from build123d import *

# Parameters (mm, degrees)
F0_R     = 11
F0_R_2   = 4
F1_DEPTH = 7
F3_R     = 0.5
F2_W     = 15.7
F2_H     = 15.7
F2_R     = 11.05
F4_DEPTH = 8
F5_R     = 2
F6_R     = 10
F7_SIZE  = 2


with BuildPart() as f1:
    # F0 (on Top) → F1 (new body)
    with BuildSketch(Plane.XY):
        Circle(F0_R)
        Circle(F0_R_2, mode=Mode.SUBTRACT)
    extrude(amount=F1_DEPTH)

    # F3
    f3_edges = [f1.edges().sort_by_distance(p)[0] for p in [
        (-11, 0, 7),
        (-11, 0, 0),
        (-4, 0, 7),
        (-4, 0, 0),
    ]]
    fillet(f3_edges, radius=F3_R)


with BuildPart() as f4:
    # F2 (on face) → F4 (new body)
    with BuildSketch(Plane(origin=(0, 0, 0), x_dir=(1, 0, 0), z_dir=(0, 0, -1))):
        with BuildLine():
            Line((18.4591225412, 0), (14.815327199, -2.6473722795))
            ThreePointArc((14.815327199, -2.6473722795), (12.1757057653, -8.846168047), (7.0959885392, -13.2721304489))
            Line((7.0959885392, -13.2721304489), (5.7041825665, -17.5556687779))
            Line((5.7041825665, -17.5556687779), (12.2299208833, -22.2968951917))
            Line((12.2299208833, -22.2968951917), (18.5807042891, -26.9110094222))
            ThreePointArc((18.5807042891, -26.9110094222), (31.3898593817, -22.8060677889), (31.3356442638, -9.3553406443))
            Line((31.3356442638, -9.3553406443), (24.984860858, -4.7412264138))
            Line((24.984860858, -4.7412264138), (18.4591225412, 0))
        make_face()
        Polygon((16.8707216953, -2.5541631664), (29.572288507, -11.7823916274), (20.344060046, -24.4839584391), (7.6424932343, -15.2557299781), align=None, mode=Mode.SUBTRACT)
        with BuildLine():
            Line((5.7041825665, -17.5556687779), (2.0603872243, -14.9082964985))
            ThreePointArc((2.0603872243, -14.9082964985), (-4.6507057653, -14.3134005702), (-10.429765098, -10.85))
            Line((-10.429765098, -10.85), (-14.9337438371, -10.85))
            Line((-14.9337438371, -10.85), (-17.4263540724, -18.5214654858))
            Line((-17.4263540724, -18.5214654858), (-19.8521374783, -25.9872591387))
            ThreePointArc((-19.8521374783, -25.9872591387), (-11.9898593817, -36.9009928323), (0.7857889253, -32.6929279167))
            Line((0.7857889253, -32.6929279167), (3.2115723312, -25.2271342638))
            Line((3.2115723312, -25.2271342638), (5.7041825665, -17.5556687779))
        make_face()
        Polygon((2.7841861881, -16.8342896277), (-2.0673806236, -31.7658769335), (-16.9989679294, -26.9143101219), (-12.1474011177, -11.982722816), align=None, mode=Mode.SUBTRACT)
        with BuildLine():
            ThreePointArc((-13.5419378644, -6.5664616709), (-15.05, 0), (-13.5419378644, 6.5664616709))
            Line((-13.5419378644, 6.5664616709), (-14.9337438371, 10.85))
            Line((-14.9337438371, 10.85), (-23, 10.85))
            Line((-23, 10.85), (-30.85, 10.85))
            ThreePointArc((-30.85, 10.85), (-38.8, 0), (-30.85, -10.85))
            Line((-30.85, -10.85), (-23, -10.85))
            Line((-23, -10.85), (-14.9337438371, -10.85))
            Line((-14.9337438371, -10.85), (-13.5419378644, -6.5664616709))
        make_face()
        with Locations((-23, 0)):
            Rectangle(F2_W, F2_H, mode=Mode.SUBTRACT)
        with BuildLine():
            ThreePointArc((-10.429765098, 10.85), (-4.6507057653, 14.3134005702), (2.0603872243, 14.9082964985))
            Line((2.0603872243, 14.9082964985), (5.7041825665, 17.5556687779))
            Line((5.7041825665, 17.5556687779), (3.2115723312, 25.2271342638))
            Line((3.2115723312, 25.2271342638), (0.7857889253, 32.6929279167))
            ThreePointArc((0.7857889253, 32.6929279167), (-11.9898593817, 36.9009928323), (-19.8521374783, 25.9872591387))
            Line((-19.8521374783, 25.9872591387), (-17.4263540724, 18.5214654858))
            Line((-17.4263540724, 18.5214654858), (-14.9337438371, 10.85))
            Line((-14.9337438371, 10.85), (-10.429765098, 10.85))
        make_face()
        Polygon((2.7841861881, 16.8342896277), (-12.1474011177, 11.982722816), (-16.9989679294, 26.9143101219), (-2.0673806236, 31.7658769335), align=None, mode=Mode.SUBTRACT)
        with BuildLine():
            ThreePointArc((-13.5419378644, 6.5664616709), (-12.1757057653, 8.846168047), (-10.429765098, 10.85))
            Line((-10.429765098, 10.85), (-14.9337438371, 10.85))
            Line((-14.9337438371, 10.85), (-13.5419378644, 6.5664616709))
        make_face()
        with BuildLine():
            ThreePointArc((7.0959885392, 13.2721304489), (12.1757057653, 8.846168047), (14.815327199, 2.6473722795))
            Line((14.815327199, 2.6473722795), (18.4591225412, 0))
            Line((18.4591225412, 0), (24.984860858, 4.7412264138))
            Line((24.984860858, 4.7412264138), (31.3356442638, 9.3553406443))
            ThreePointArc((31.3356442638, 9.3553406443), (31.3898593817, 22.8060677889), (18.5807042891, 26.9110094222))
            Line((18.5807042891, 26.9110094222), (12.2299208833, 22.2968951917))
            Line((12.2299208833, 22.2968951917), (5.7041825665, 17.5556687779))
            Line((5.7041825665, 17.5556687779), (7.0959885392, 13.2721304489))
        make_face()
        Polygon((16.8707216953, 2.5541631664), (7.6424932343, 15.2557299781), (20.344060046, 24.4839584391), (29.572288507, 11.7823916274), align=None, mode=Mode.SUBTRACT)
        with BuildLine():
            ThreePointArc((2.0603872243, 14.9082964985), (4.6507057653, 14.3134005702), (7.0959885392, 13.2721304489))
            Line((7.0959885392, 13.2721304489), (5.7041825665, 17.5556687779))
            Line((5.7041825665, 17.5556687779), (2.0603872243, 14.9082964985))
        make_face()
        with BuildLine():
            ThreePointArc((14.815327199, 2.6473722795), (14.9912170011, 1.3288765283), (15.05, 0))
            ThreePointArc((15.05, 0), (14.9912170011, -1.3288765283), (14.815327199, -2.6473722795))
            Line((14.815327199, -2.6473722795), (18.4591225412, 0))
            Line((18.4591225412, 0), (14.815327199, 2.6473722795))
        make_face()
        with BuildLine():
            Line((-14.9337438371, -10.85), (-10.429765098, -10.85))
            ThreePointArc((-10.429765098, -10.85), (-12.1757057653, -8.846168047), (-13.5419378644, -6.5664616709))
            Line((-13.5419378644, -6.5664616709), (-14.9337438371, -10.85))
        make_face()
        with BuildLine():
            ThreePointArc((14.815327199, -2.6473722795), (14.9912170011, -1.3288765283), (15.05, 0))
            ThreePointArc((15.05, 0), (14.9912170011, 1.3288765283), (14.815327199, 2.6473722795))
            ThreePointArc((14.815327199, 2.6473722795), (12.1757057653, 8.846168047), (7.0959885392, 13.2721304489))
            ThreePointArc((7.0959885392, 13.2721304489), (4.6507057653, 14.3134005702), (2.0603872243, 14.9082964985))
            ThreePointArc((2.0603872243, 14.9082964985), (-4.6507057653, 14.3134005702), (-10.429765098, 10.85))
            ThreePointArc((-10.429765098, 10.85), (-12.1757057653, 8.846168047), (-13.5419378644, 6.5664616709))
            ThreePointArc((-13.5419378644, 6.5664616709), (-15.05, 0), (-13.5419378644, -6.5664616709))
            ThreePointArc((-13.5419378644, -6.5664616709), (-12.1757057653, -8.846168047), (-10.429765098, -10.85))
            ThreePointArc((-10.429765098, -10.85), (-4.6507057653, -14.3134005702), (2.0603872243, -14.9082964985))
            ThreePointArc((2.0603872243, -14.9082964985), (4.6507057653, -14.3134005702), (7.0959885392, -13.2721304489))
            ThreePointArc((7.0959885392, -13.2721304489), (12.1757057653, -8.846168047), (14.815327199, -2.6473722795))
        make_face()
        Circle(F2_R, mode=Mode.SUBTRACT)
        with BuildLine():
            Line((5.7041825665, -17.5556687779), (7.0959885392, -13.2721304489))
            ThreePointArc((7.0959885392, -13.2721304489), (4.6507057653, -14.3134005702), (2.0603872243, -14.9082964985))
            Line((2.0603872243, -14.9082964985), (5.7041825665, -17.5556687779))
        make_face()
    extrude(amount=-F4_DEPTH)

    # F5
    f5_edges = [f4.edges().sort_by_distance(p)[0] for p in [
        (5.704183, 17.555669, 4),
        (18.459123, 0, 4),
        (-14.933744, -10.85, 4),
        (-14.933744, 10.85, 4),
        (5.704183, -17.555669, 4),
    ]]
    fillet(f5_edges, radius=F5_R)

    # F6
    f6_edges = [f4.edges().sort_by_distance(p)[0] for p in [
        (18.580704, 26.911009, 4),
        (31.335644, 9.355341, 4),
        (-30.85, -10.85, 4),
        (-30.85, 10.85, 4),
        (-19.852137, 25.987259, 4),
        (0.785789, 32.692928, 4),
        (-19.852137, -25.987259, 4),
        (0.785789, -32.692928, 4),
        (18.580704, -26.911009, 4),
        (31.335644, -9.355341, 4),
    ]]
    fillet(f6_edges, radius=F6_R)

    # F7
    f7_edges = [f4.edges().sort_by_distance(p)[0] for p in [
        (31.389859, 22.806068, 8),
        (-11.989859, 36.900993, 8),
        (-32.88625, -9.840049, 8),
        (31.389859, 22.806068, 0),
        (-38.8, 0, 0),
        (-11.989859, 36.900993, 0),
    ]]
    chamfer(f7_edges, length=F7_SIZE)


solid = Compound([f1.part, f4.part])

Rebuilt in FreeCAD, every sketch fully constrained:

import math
import FreeCAD as App
import Part
import Sketcher
from FreeCAD import Vector
Q = App.Units.Quantity


def edges_at(feature, points):
    """Names of the edges that pass closest to the given points."""
    edges = feature.Shape.Edges
    near = lambda p: min(range(len(edges)), key=lambda i: edges[i].distToShape(Part.Vertex(*p))[0])
    return sorted({f"Edge{near(p) + 1}" for p in points})


def add_polygon(sketch, points):
    """Adds a closed chain of lines whose ends are joined by coincident constraints."""
    first, n = sketch.GeometryCount, len(points)
    for a, b in zip(points, points[1:] + points[:1]):
        sketch.addGeometry(Part.LineSegment(App.Vector(*a, 0), App.Vector(*b, 0)), False)
    for i in range(n):
        sketch.addConstraint(Sketcher.Constraint("Coincident", first + i, 2, first + (i + 1) % n, 1))

doc = App.newDocument("Part")
body = doc.addObject("PartDesign::Body", "Body")

# Sketch on XY plane
sketch1 = doc.addObject("Sketcher::SketchObject", "Sketch")
body.addObject(sketch1)
sketch1.AttachmentSupport = (doc.XY_Plane, [""])
sketch1.MapMode = "FlatFace"
sketch1.addGeometry([
    Part.Circle(Vector(0, 0, 0), Vector(0, 0, 1), 11),
    Part.Circle(Vector(0, 0, 0), Vector(0, 0, 1), 4),
], False)
sketch1.addConstraint([
    Sketcher.Constraint("Coincident", 0, 3, -1, 1),
    Sketcher.Constraint("Coincident", 1, 3, -1, 1),
    Sketcher.Constraint("Diameter", 0, 22.0),
    Sketcher.Constraint("Diameter", 1, 8.0),
])
pad1 = doc.addObject("PartDesign::Pad", "Pad")
body.addObject(pad1)
pad1.Profile = sketch1
pad1.Length = 7
doc.recompute()

fillet = doc.addObject("PartDesign::Fillet", "Fillet")
body.addObject(fillet)
fillet.Base = (pad1, edges_at(pad1, [
    (-11, 0, 7),
    (-11, 0, 0),
    (-4, 0, 7),
    (-4, 0, 0),
]))
fillet.Radius = 0.5
body2 = doc.addObject("PartDesign::Body", "Body001")

# Sketch on XY plane
sketch2 = doc.addObject("Sketcher::SketchObject", "Sketch001")
body2.addObject(sketch2)
sketch2.AttachmentSupport = (doc.getObject("XY_Plane001"), [""])
sketch2.MapMode = "FlatFace"
sketch2.addGeometry(Part.LineSegment(Vector(1, 33, 0), Vector(3, 25, 0)), False)  # 0
sketch2.addGeometry(Part.LineSegment(Vector(3, 25, 0), Vector(6, 18, 0)), False)  # 1
sketch2.addGeometry(Part.LineSegment(Vector(6, 18, 0), Vector(12, 22, 0)), False)  # 2
sketch2.addGeometry(Part.LineSegment(Vector(12, 22, 0), Vector(19, 27, 0)), False)  # 3
sketch2.addGeometry(Part.ArcOfCircle(Part.Circle(Vector(22, 16, 0), Vector(0, 0, 1), 11), math.radians(-36), math.radians(108)), False)  # 4
sketch2.addGeometry(Part.LineSegment(Vector(31, 9, 0), Vector(25, 5, 0)), False)  # 5
sketch2.addGeometry(Part.LineSegment(Vector(25, 5, 0), Vector(18, 0, 0)), False)  # 6
sketch2.addGeometry(Part.LineSegment(Vector(18, 0, 0), Vector(25, -5, 0)), False)  # 7
sketch2.addGeometry(Part.LineSegment(Vector(25, -5, 0), Vector(31, -9, 0)), False)  # 8
sketch2.addGeometry(Part.ArcOfCircle(Part.Circle(Vector(22, -16, 0), Vector(0, 0, 1), 11), math.radians(-108), math.radians(36)), False)  # 9
sketch2.addGeometry(Part.LineSegment(Vector(19, -27, 0), Vector(12, -22, 0)), False)  # 10
sketch2.addGeometry(Part.LineSegment(Vector(12, -22, 0), Vector(6, -18, 0)), False)  # 11
sketch2.addGeometry(Part.LineSegment(Vector(6, -18, 0), Vector(3, -25, 0)), False)  # 12
sketch2.addGeometry(Part.LineSegment(Vector(3, -25, 0), Vector(1, -33, 0)), False)  # 13
sketch2.addGeometry(Part.ArcOfCircle(Part.Circle(Vector(-8, -26, 0), Vector(0, 0, 1), 11), math.radians(180), math.radians(324)), False)  # 14
sketch2.addGeometry(Part.LineSegment(Vector(-20, -26, 0), Vector(-17, -19, 0)), False)  # 15
sketch2.addGeometry(Part.LineSegment(Vector(-17, -19, 0), Vector(-15, -11, 0)), False)  # 16
sketch2.addGeometry(Part.LineSegment(Vector(-15, -11, 0), Vector(-31, -11, 0)), False)  # 17
sketch2.addGeometry(Part.ArcOfCircle(Part.Circle(Vector(-27, 0, 0), Vector(0, 0, 1), 11), math.radians(108), math.radians(252)), False)  # 18
sketch2.addGeometry(Part.LineSegment(Vector(-31, 11, 0), Vector(-15, 11, 0)), False)  # 19
sketch2.addGeometry(Part.LineSegment(Vector(-15, 11, 0), Vector(-17, 19, 0)), False)  # 20
sketch2.addGeometry(Part.LineSegment(Vector(-17, 19, 0), Vector(-20, 26, 0)), False)  # 21
sketch2.addGeometry(Part.ArcOfCircle(Part.Circle(Vector(-8, 26, 0), Vector(0, 0, 1), 11), math.radians(36), math.radians(180)), False)  # 22
add_polygon(sketch2, [(3, 17), (-2, 32), (-17, 27), (-12, 12)])  # lines 23-26
add_polygon(sketch2, [(-15, 8), (-31, 8), (-31, -8), (-15, -8)])  # lines 27-30
sketch2.addGeometry(Part.Circle(Vector(0, 0, 0), Vector(0, 0, 1), 11), False)  # 31
add_polygon(sketch2, [(8, 15), (17, 3), (30, 12), (20, 24)])  # lines 32-35
add_polygon(sketch2, [(3, -17), (-12, -12), (-17, -27), (-2, -32)])  # lines 36-39
add_polygon(sketch2, [(30, -12), (17, -3), (8, -15), (20, -24)])  # lines 40-43
sketch2.addConstraint([
    Sketcher.Constraint("Coincident", 0, 2, 1, 1),
    Sketcher.Constraint("Coincident", 1, 2, 2, 1),
    Sketcher.Constraint("Coincident", 2, 2, 3, 1),
    Sketcher.Constraint("Coincident", 3, 2, 4, 2),
    Sketcher.Constraint("Coincident", 4, 1, 5, 1),
    Sketcher.Constraint("Coincident", 5, 2, 6, 1),
    Sketcher.Constraint("Coincident", 6, 2, 7, 1),
    Sketcher.Constraint("Coincident", 7, 2, 8, 1),
    Sketcher.Constraint("Coincident", 8, 2, 9, 2),
    Sketcher.Constraint("Coincident", 9, 1, 10, 1),
    Sketcher.Constraint("Coincident", 10, 2, 11, 1),
    Sketcher.Constraint("Coincident", 11, 2, 12, 1),
    Sketcher.Constraint("Coincident", 12, 2, 13, 1),
    Sketcher.Constraint("Coincident", 13, 2, 14, 2),
    Sketcher.Constraint("Coincident", 14, 1, 15, 1),
    Sketcher.Constraint("Coincident", 15, 2, 16, 1),
    Sketcher.Constraint("Coincident", 16, 2, 17, 1),
    Sketcher.Constraint("Coincident", 17, 2, 18, 2),
    Sketcher.Constraint("Coincident", 18, 1, 19, 1),
    Sketcher.Constraint("Coincident", 19, 2, 20, 1),
    Sketcher.Constraint("Coincident", 20, 2, 21, 1),
    Sketcher.Constraint("Coincident", 21, 2, 22, 2),
    Sketcher.Constraint("Coincident", 22, 1, 0, 1),
    Sketcher.Constraint("Horizontal", 17),
    Sketcher.Constraint("Horizontal", 19),
    Sketcher.Constraint("Horizontal", 27),
    Sketcher.Constraint("Vertical", 28),
    Sketcher.Constraint("Horizontal", 29),
    Sketcher.Constraint("Vertical", 30),
    Sketcher.Constraint("Coincident", 31, 3, -1, 1),
    Sketcher.Constraint("Equal", 4, 9),
    Sketcher.Constraint("Equal", 9, 14),
    Sketcher.Constraint("Equal", 14, 18),
    Sketcher.Constraint("Equal", 18, 22),
    Sketcher.Constraint("Symmetric", 4, 3, 9, 3, -1),
    Sketcher.Constraint("Symmetric", 14, 3, 22, 3, -1),
    Sketcher.Constraint("Symmetric", 5, 2, 7, 2, -1),
    Sketcher.Constraint("Symmetric", 2, 2, 10, 2, -1),
    Sketcher.Constraint("Symmetric", 1, 2, 11, 2, -1),
    Sketcher.Constraint("Symmetric", 0, 2, 12, 2, -1),
    Sketcher.Constraint("Symmetric", 17, 2, 18, 1, -1),
    Sketcher.Constraint("Symmetric", 15, 2, 20, 2, -1),
    Sketcher.Constraint("Symmetric", 25, 2, 36, 2, -1),
    Sketcher.Constraint("Symmetric", 24, 2, 37, 2, -1),
    Sketcher.Constraint("Symmetric", 23, 2, 38, 2, -1),
    Sketcher.Constraint("Symmetric", 26, 2, 39, 2, -1),
    Sketcher.Constraint("Symmetric", 32, 2, 40, 2, -1),
    Sketcher.Constraint("Symmetric", 35, 2, 41, 2, -1),
    Sketcher.Constraint("Symmetric", 34, 2, 42, 2, -1),
    Sketcher.Constraint("Symmetric", 33, 2, 43, 2, -1),
    Sketcher.Constraint("PointOnObject", 6, 2, -1),
    Sketcher.Constraint("Parallel", 0, 1),
    Sketcher.Constraint("Parallel", 2, 3),
    Sketcher.Constraint("Parallel", 3, 5),
    Sketcher.Constraint("Parallel", 5, 6),
    Sketcher.Constraint("Parallel", 7, 8),
    Sketcher.Constraint("Parallel", 8, 10),
    Sketcher.Constraint("Parallel", 12, 13),
    Sketcher.Constraint("Parallel", 13, 15),
    Sketcher.Constraint("Parallel", 15, 16),
    Sketcher.Constraint("Parallel", 1, 20),
    Sketcher.Constraint("Parallel", 20, 21),
    Sketcher.Constraint("Parallel", 21, 23),
    Sketcher.Constraint("Perpendicular", 23, 24),
    Sketcher.Constraint("Perpendicular", 24, 25),
    Sketcher.Constraint("Perpendicular", 25, 26),
    Sketcher.Constraint("Perpendicular", 6, 32),
    Sketcher.Constraint("Perpendicular", 32, 33),
    Sketcher.Constraint("Perpendicular", 33, 34),
    Sketcher.Constraint("Perpendicular", 34, 35),
    Sketcher.Constraint("Vertical", 18, 1, 27, 2),
    Sketcher.Constraint("Equal", 29, 28),
    Sketcher.Constraint("Equal", 1, 2),
    Sketcher.Constraint("Equal", 0, 3),
    Sketcher.Constraint("Equal", 3, 5),
    Sketcher.Constraint("Equal", 2, 6),
    Sketcher.Constraint("Equal", 13, 15),
    Sketcher.Constraint("Equal", 12, 16),
    Sketcher.Constraint("Equal", 23, 24),
    Sketcher.Constraint("Equal", 26, 32),
    Sketcher.Constraint("Equal", 32, 33),
    Sketcher.Constraint("Diameter", 31, 22.1),
    Sketcher.Constraint("Angle", 0, Q("-72 deg")),
    Sketcher.Constraint("Angle", 2, Q("36 deg")),
    Sketcher.Constraint("DistanceX", 27, 2, 27, 1, 15.7),
    Sketcher.Constraint("DistanceY", 27, 2, 18, 1, 3.0),
    Sketcher.Constraint("DistanceY", 17, 2, 28, 2, 3.0),
    Sketcher.Constraint("Distance", 23, 15.7),
    Sketcher.Constraint("Distance", 0, 7.85),
    Sketcher.Constraint("DistanceX", 17, 2, -1, 1, 30.85),
    Sketcher.Constraint("Radius", 4, 11.378931),
    Sketcher.Constraint("DistanceY", -1, 1, 4, 3, 16.1177),
    Sketcher.Constraint("DistanceX", 25, 2, -1, 1, 12.147401),
    Sketcher.Constraint("DistanceX", 23, 2, 2, 2, 14.297302),
    Sketcher.Constraint("DistanceX", 32, 2, 6, 2, 1.588401),
    Sketcher.Constraint("DistanceX", 17, 2, 17, 1, 15.916256),
    Sketcher.Constraint("DistanceX", -1, 1, 4, 3, 22.184111),
    Sketcher.Constraint("DistanceY", -1, 1, 1, 2, 17.555669),
    Sketcher.Constraint("DistanceY", -1, 1, 24, 2, 26.91431),
    Sketcher.Constraint("DistanceY", -1, 1, 33, 2, 11.782392),
])
pad2 = doc.addObject("PartDesign::Pad", "Pad001")
body2.addObject(pad2)
pad2.Profile = sketch2
pad2.Length = 8
doc.recompute()

fillet2 = doc.addObject("PartDesign::Fillet", "Fillet001")
body2.addObject(fillet2)
fillet2.Base = (pad2, edges_at(pad2, [
    (5.704, 17.556, 4),
    (18.459, 0, 4),
    (-14.934, -10.85, 4),
    (-14.934, 10.85, 4),
    (5.704, -17.556, 4),
]))
fillet2.Radius = 2
doc.recompute()

fillet3 = doc.addObject("PartDesign::Fillet", "Fillet002")
body2.addObject(fillet3)
fillet3.Base = (fillet2, edges_at(fillet2, [
    (18.581, 26.911, 4),
    (31.336, 9.355, 4),
    (-30.85, -10.85, 4),
    (-30.85, 10.85, 4),
    (-19.852, 25.987, 4),
    (0.786, 32.693, 4),
    (-19.852, -25.987, 4),
    (0.786, -32.693, 4),
    (18.581, -26.911, 4),
    (31.336, -9.355, 4),
]))
fillet3.Radius = 10
doc.recompute()

chamfer = doc.addObject("PartDesign::Chamfer", "Chamfer")
body2.addObject(chamfer)
chamfer.Base = (fillet3, edges_at(fillet3, [
    (31.39, 22.806, 8),
    (-11.99, 36.901, 8),
    (-32.886, -9.84, 8),
    (31.39, 22.806, 0),
    (-38.8, 0, 0),
    (-11.99, 36.901, 0),
]))
chamfer.Size = 2

doc.recompute()
